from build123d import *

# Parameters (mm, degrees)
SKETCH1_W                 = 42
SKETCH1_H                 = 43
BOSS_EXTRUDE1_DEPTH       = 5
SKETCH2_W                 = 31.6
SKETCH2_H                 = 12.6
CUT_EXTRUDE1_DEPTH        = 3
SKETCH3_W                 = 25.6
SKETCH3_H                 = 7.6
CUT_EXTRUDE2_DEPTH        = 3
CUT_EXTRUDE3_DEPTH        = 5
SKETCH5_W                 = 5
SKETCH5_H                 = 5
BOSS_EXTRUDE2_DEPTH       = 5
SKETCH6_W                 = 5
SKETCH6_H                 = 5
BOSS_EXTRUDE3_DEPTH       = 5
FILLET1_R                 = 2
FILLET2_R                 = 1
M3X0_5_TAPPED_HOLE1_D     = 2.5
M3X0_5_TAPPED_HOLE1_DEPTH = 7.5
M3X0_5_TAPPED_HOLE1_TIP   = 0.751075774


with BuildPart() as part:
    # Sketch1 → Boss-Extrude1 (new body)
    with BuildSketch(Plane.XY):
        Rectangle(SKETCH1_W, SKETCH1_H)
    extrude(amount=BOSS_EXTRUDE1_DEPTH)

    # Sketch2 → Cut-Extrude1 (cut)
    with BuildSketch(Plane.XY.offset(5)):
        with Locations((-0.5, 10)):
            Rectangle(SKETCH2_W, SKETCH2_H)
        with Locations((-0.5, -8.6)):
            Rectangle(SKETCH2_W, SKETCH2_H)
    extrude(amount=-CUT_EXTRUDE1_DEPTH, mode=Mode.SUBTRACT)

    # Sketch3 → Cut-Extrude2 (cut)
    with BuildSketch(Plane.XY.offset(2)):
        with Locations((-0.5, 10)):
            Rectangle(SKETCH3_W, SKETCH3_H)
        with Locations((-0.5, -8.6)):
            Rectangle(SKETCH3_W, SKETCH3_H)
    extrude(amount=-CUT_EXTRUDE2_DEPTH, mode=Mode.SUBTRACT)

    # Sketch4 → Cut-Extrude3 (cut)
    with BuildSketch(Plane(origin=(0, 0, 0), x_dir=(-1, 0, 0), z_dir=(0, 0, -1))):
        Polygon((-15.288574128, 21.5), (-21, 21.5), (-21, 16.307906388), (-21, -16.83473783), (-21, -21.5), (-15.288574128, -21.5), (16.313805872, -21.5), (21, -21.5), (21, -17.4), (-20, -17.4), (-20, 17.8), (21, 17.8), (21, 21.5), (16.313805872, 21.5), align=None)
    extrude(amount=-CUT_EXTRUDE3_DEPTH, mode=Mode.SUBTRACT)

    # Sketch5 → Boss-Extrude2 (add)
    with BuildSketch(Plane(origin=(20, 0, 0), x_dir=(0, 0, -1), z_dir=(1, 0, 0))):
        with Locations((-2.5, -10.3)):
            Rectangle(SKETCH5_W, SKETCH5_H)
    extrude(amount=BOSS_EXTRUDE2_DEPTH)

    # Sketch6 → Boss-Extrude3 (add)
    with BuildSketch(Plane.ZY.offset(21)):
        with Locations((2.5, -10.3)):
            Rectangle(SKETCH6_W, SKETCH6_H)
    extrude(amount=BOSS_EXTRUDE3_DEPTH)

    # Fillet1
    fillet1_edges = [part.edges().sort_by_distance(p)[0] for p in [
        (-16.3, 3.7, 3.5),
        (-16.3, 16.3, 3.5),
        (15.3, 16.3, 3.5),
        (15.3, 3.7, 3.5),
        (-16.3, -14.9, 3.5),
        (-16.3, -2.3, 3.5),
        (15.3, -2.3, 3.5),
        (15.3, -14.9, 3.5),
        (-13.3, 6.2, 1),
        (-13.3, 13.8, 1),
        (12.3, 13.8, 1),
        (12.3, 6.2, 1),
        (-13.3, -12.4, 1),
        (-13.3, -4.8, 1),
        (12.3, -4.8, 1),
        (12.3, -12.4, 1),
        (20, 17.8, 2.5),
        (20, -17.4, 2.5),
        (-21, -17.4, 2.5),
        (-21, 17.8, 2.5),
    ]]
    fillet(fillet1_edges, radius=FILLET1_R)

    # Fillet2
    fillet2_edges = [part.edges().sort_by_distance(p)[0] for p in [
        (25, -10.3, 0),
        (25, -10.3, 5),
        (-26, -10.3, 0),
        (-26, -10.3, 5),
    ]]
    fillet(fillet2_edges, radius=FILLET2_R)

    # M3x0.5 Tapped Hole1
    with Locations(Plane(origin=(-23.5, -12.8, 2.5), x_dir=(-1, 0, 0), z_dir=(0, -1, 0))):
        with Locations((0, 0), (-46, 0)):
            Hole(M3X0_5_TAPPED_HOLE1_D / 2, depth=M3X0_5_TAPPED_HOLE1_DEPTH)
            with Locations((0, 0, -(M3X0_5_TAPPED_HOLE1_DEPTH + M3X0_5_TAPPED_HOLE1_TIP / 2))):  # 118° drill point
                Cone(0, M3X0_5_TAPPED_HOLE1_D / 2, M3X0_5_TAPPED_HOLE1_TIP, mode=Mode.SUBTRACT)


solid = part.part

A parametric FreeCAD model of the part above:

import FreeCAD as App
import Part
import Sketcher
Q = App.Units.Quantity


def edges_at(feature, points):
    """Names of the edges that pass closest to the given points."""
    edges = feature.Shape.Edges
    near = lambda p: min(range(len(edges)), key=lambda i: edges[i].distToShape(Part.Vertex(*p))[0])
    return sorted({f"Edge{near(p) + 1}" for p in points})

doc = App.newDocument("Part")
body = doc.addObject("PartDesign::Body", "Body")

# Sketch on XY plane
sketch1 = doc.addObject("Sketcher::SketchObject", "Sketch")
body.addObject(sketch1)
sketch1.AttachmentSupport = (doc.XY_Plane, [""])
sketch1.MapMode = "FlatFace"
sketch1.addGeometry([
    Part.LineSegment(App.Vector(-21, 22, 0), App.Vector(-21, -22, 0)),
    Part.LineSegment(App.Vector(-21, -22, 0), App.Vector(21, -22, 0)),
    Part.LineSegment(App.Vector(21, -22, 0), App.Vector(21, 22, 0)),
    Part.LineSegment(App.Vector(21, 22, 0), App.Vector(-21, 22, 0)),
], False)
sketch1.addConstraint([
    Sketcher.Constraint("Coincident", 0, 2, 1, 1),
    Sketcher.Constraint("Coincident", 1, 2, 2, 1),
    Sketcher.Constraint("Coincident", 2, 2, 3, 1),
    Sketcher.Constraint("Coincident", 3, 2, 0, 1),
    Sketcher.Constraint("Vertical", 0),
    Sketcher.Constraint("Horizontal", 1),
    Sketcher.Constraint("Vertical", 2),
    Sketcher.Constraint("Horizontal", 3),
    Sketcher.Constraint("Symmetric", 0, 2, 2, 2, -1, 1),
    Sketcher.Constraint("DistanceX", 1, 1, 1, 2, Q("42 mm")),
    Sketcher.Constraint("DistanceY", 0, 2, 0, 1, Q("43 mm")),
])
pad1 = doc.addObject("PartDesign::Pad", "Pad")
body.addObject(pad1)
pad1.Profile = sketch1
pad1.Length = 5

# Sketch on XY plane
sketch2 = doc.addObject("Sketcher::SketchObject", "Sketch001")
body.addObject(sketch2)
sketch2.AttachmentSupport = (doc.XY_Plane, [""])
sketch2.MapMode = "FlatFace"
sketch2.AttachmentOffset = App.Placement(App.Vector(0, 0, 5), App.Rotation())
sketch2.addGeometry([
    Part.LineSegment(App.Vector(-16, 16, 0), App.Vector(-16, 4, 0)),  # 0
    Part.LineSegment(App.Vector(-16, 4, 0), App.Vector(15, 4, 0)),  # 1
    Part.LineSegment(App.Vector(15, 4, 0), App.Vector(15, 16, 0)),  # 2
    Part.LineSegment(App.Vector(15, 16, 0), App.Vector(-16, 16, 0)),  # 3
    Part.LineSegment(App.Vector(-16, -2, 0), App.Vector(-16, -15, 0)),  # 4
    Part.LineSegment(App.Vector(-16, -15, 0), App.Vector(15, -15, 0)),  # 5
    Part.LineSegment(App.Vector(15, -15, 0), App.Vector(15, -2, 0)),  # 6
    Part.LineSegment(App.Vector(15, -2, 0), App.Vector(-16, -2, 0)),  # 7
], False)
sketch2.addConstraint([
    Sketcher.Constraint("Coincident", 0, 2, 1, 1),
    Sketcher.Constraint("Coincident", 1, 2, 2, 1),
    Sketcher.Constraint("Coincident", 2, 2, 3, 1),
    Sketcher.Constraint("Coincident", 3, 2, 0, 1),
    Sketcher.Constraint("Coincident", 4, 2, 5, 1),
    Sketcher.Constraint("Coincident", 5, 2, 6, 1),
    Sketcher.Constraint("Coincident", 6, 2, 7, 1),
    Sketcher.Constraint("Coincident", 7, 2, 4, 1),
    Sketcher.Constraint("Vertical", 0),
    Sketcher.Constraint("Horizontal", 1),
    Sketcher.Constraint("Vertical", 2),
    Sketcher.Constraint("Horizontal", 3),
    Sketcher.Constraint("Vertical", 4),
    Sketcher.Constraint("Horizontal", 5),
    Sketcher.Constraint("Vertical", 6),
    Sketcher.Constraint("Horizontal", 7),
    Sketcher.Constraint("Vertical", 3, 2, 4, 2),
    Sketcher.Constraint("Vertical", 2, 2, 5, 2),
    Sketcher.Constraint("Equal", 2, 4),
    Sketcher.Constraint("DistanceX", 1, 1, 1, 2, Q("31.6 mm")),
    Sketcher.Constraint("DistanceY", 0, 2, 0, 1, Q("12.6 mm")),
    Sketcher.Constraint("DistanceY", 6, 2, 1, 2, Q("6 mm")),
    Sketcher.Constraint("DistanceX", 0, 2, -1, 1, Q("16.3 mm")),
    Sketcher.Constraint("DistanceY", -1, 1, 0, 2, Q("3.7 mm")),
])
pocket1 = doc.addObject("PartDesign::Pocket", "Pocket")
body.addObject(pocket1)
pocket1.Profile = sketch2
pocket1.Length = 3

# Sketch on XY plane
sketch3 = doc.addObject("Sketcher::SketchObject", "Sketch002")
body.addObject(sketch3)
sketch3.AttachmentSupport = (doc.XY_Plane, [""])
sketch3.MapMode = "FlatFace"
sketch3.AttachmentOffset = App.Placement(App.Vector(0, 0, 2), App.Rotation())
sketch3.addGeometry([
    Part.LineSegment(App.Vector(-13, 14, 0), App.Vector(-13, 6, 0)),  # 0
    Part.LineSegment(App.Vector(-13, 6, 0), App.Vector(12, 6, 0)),  # 1
    Part.LineSegment(App.Vector(12, 6, 0), App.Vector(12, 14, 0)),  # 2
    Part.LineSegment(App.Vector(12, 14, 0), App.Vector(-13, 14, 0)),  # 3
    Part.LineSegment(App.Vector(-13, -5, 0), App.Vector(-13, -12, 0)),  # 4
    Part.LineSegment(App.Vector(-13, -12, 0), App.Vector(12, -12, 0)),  # 5
    Part.LineSegment(App.Vector(12, -12, 0), App.Vector(12, -5, 0)),  # 6
    Part.LineSegment(App.Vector(12, -5, 0), App.Vector(-13, -5, 0)),  # 7
], False)
sketch3.addConstraint([
    Sketcher.Constraint("Coincident", 0, 2, 1, 1),
    Sketcher.Constraint("Coincident", 1, 2, 2, 1),
    Sketcher.Constraint("Coincident", 2, 2, 3, 1),
    Sketcher.Constraint("Coincident", 3, 2, 0, 1),
    Sketcher.Constraint("Coincident", 4, 2, 5, 1),
    Sketcher.Constraint("Coincident", 5, 2, 6, 1),
    Sketcher.Constraint("Coincident", 6, 2, 7, 1),
    Sketcher.Constraint("Coincident", 7, 2, 4, 1),
    Sketcher.Constraint("Vertical", 0),
    Sketcher.Constraint("Horizontal", 1),
    Sketcher.Constraint("Vertical", 2),
    Sketcher.Constraint("Horizontal", 3),
    Sketcher.Constraint("Vertical", 4),
    Sketcher.Constraint("Horizontal", 5),
    Sketcher.Constraint("Vertical", 6),
    Sketcher.Constraint("Horizontal", 7),
    Sketcher.Constraint("Vertical", 3, 2, 4, 2),
    Sketcher.Constraint("Vertical", 2, 2, 5, 2),
    Sketcher.Constraint("Equal", 2, 4),
    Sketcher.Constraint("DistanceX", 1, 1, 1, 2, Q("25.6 mm")),
    Sketcher.Constraint("DistanceY", 0, 2, 0, 1, Q("7.6 mm")),
    Sketcher.Constraint("DistanceY", 6, 2, 1, 2, Q("11 mm")),
    Sketcher.Constraint("DistanceX", 0, 2, -1, 1, Q("13.3 mm")),
    Sketcher.Constraint("DistanceY", -1, 1, 0, 2, Q("6.2 mm")),
])
pocket2 = doc.addObject("PartDesign::Pocket", "Pocket001")
body.addObject(pocket2)
pocket2.Profile = sketch3
pocket2.Length = 3

# Sketch on XY plane
sketch4 = doc.addObject("Sketcher::SketchObject", "Sketch003")
body.addObject(sketch4)
sketch4.AttachmentSupport = (doc.XY_Plane, [""])
sketch4.MapMode = "FlatFace"
sketch4.addGeometry([
    Part.LineSegment(App.Vector(21, 21.5, 0), App.Vector(21, -21.5, 0)),  # 0
    Part.LineSegment(App.Vector(21, -21.5, 0), App.Vector(-21, -21.5, 0)),  # 1
    Part.LineSegment(App.Vector(-21, -21.5, 0), App.Vector(-21, -17.4, 0)),  # 2
    Part.LineSegment(App.Vector(-21, -17.4, 0), App.Vector(20, -17.4, 0)),  # 3
    Part.LineSegment(App.Vector(20, -17.4, 0), App.Vector(20, 17.8, 0)),  # 4
    Part.LineSegment(App.Vector(20, 17.8, 0), App.Vector(-21, 17.8, 0)),  # 5
    Part.LineSegment(App.Vector(-21, 17.8, 0), App.Vector(-21, 21.5, 0)),  # 6
    Part.LineSegment(App.Vector(-21, 21.5, 0), App.Vector(21, 21.5, 0)),  # 7
], False)
sketch4.addConstraint([
    Sketcher.Constraint("Coincident", 0, 2, 1, 1),
    Sketcher.Constraint("Coincident", 1, 2, 2, 1),
    Sketcher.Constraint("Coincident", 2, 2, 3, 1),
    Sketcher.Constraint("Coincident", 3, 2, 4, 1),
    Sketcher.Constraint("Coincident", 4, 2, 5, 1),
    Sketcher.Constraint("Coincident", 5, 2, 6, 1),
    Sketcher.Constraint("Coincident", 6, 2, 7, 1),
    Sketcher.Constraint("Coincident", 7, 2, 0, 1),
    Sketcher.Constraint("Vertical", 0),
    Sketcher.Constraint("Horizontal", 1),
    Sketcher.Constraint("Vertical", 2),
    Sketcher.Constraint("Horizontal", 3),
    Sketcher.Constraint("Vertical", 4),
    Sketcher.Constraint("Horizontal", 5),
    Sketcher.Constraint("Vertical", 6),
    Sketcher.Constraint("Horizontal", 7),
    Sketcher.Constraint("Symmetric", 0, 2, 6, 2, -1, 1),
    Sketcher.Constraint("Vertical", 2, 2, 5, 2),
    Sketcher.Constraint("DistanceX", 1, 2, 1, 1, Q("42 mm")),
    Sketcher.Constraint("DistanceX", 3, 1, 3, 2, Q("41 mm")),
    Sketcher.Constraint("DistanceY", 0, 2, 0, 1, Q("43 mm")),
    Sketcher.Constraint("DistanceY", 2, 1, 2, 2, Q("4.1 mm")),
    Sketcher.Constraint("DistanceY", 4, 1, 4, 2, Q("35.2 mm")),
])
pocket3 = doc.addObject("PartDesign::Pocket", "Pocket002")
body.addObject(pocket3)
pocket3.Profile = sketch4
pocket3.Length = 5
pocket3.Reversed = True

# Sketch on YZ plane
sketch5 = doc.addObject("Sketcher::SketchObject", "Sketch004")
body.addObject(sketch5)
sketch5.AttachmentSupport = (doc.YZ_Plane, [""])
sketch5.MapMode = "FlatFace"
sketch5.AttachmentOffset = App.Placement(App.Vector(0, 0, 20), App.Rotation())
sketch5.addGeometry([
    Part.LineSegment(App.Vector(-8, 5, 0), App.Vector(-13, 5, 0)),
    Part.LineSegment(App.Vector(-13, 5, 0), App.Vector(-13, 0, 0)),
    Part.LineSegment(App.Vector(-13, 0, 0), App.Vector(-8, 0, 0)),
    Part.LineSegment(App.Vector(-8, 0, 0), App.Vector(-8, 5, 0)),
], False)
sketch5.addConstraint([
    Sketcher.Constraint("Coincident", 0, 2, 1, 1),
    Sketcher.Constraint("Coincident", 1, 2, 2, 1),
    Sketcher.Constraint("Coincident", 2, 2, 3, 1),
    Sketcher.Constraint("Coincident", 3, 2, 0, 1),
    Sketcher.Constraint("Horizontal", 0),
    Sketcher.Constraint("Vertical", 1),
    Sketcher.Constraint("Horizontal", 2),
    Sketcher.Constraint("Vertical", 3),
    Sketcher.Constraint("PointOnObject", 1, 2, -1),
    Sketcher.Constraint("Equal", 2, 1),
    Sketcher.Constraint("DistanceX", 0, 2, 0, 1, Q("5 mm")),
    Sketcher.Constraint("DistanceX", 0, 2, -1, 1, Q("12.8 mm")),
])
pad2 = doc.addObject("PartDesign::Pad", "Pad001")
body.addObject(pad2)
pad2.Profile = sketch5
pad2.Length = 5

# Sketch on YZ plane
sketch6 = doc.addObject("Sketcher::SketchObject", "Sketch005")
body.addObject(sketch6)
sketch6.AttachmentSupport = (doc.YZ_Plane, [""])
sketch6.MapMode = "FlatFace"
sketch6.AttachmentOffset = App.Placement(App.Vector(0, 0, -21), App.Rotation())
sketch6.addGeometry([
    Part.LineSegment(App.Vector(-8, 0, 0), App.Vector(-13, 0, 0)),
    Part.LineSegment(App.Vector(-13, 0, 0), App.Vector(-13, 5, 0)),
    Part.LineSegment(App.Vector(-13, 5, 0), App.Vector(-8, 5, 0)),
    Part.LineSegment(App.Vector(-8, 5, 0), App.Vector(-8, 0, 0)),
], False)
sketch6.addConstraint([
    Sketcher.Constraint("Coincident", 0, 2, 1, 1),
    Sketcher.Constraint("Coincident", 1, 2, 2, 1),
    Sketcher.Constraint("Coincident", 2, 2, 3, 1),
    Sketcher.Constraint("Coincident", 3, 2, 0, 1),
    Sketcher.Constraint("Horizontal", 0),
    Sketcher.Constraint("Vertical", 1),
    Sketcher.Constraint("Horizontal", 2),
    Sketcher.Constraint("Vertical", 3),
    Sketcher.Constraint("PointOnObject", 0, 2, -1),
    Sketcher.Constraint("Equal", 2, 1),
    Sketcher.Constraint("DistanceX", 0, 2, 0, 1, Q("5 mm")),
    Sketcher.Constraint("DistanceX", 0, 2, -1, 1, Q("12.8 mm")),
])
pad3 = doc.addObject("PartDesign::Pad", "Pad002")
body.addObject(pad3)
pad3.Profile = sketch6
pad3.Length = 5
pad3.Reversed = True
doc.recompute()

fillet = doc.addObject("PartDesign::Fillet", "Fillet")
body.addObject(fillet)
fillet.Base = (pad3, edges_at(pad3, [
    (-16.3, 3.7, 3.5),
    (-16.3, 16.3, 3.5),
    (15.3, 16.3, 3.5),
    (15.3, 3.7, 3.5),
    (-16.3, -14.9, 3.5),
    (-16.3, -2.3, 3.5),
    (15.3, -2.3, 3.5),
    (15.3, -14.9, 3.5),
    (-13.3, 6.2, 1),
    (-13.3, 13.8, 1),
    (12.3, 13.8, 1),
    (12.3, 6.2, 1),
    (-13.3, -12.4, 1),
    (-13.3, -4.8, 1),
    (12.3, -4.8, 1),
    (12.3, -12.4, 1),
    (20, 17.8, 2.5),
    (20, -17.4, 2.5),
    (-21, -17.4, 2.5),
    (-21, 17.8, 2.5),
]))
fillet.Radius = 2
doc.recompute()

fillet2 = doc.addObject("PartDesign::Fillet", "Fillet001")
body.addObject(fillet2)
fillet2.Base = (fillet, edges_at(fillet, [
    (25, -10.3, 0),
    (25, -10.3, 5),
    (-26, -10.3, 0),
    (-26, -10.3, 5),
]))
fillet2.Radius = 1

# Sketch on XZ plane
sketch7 = doc.addObject("Sketcher::SketchObject", "Sketch006")
body.addObject(sketch7)
sketch7.AttachmentSupport = (doc.XZ_Plane, [""])
sketch7.MapMode = "FlatFace"
sketch7.AttachmentOffset = App.Placement(App.Vector(0, 0, 12.8), App.Rotation())
sketch7.addGeometry([
    Part.Circle(App.Vector(-23.5, 2.5, 0), App.Vector(0, 0, 1), 1.2),
    Part.Circle(App.Vector(22.5, 2.5, 0), App.Vector(0, 0, 1), 1.2),
], False)
sketch7.addConstraint([
    Sketcher.Constraint("Equal", 0, 1),
    Sketcher.Constraint("Horizontal", 0, 3, 1, 3),
    Sketcher.Constraint("Diameter", 0, Q("2.5 mm")),
    Sketcher.Constraint("DistanceX", 0, 3, 1, 3, Q("46 mm")),
    Sketcher.Constraint("DistanceX", 0, 3, -1, 1, Q("23.5 mm")),
    Sketcher.Constraint("DistanceY", -1, 1, 0, 3, Q("2.5 mm")),
])
doc.recompute()
hole = doc.addObject("PartDesign::Hole", "Hole")
body.addObject(hole)
hole.Profile = sketch7
hole.ThreadType = "None"
hole.Diameter = 2.5
hole.DepthType = "Dimension"
hole.Depth = 7.5
hole.DrillPoint = "Angled"
hole.DrillPointAngle = 118

doc.recompute()
